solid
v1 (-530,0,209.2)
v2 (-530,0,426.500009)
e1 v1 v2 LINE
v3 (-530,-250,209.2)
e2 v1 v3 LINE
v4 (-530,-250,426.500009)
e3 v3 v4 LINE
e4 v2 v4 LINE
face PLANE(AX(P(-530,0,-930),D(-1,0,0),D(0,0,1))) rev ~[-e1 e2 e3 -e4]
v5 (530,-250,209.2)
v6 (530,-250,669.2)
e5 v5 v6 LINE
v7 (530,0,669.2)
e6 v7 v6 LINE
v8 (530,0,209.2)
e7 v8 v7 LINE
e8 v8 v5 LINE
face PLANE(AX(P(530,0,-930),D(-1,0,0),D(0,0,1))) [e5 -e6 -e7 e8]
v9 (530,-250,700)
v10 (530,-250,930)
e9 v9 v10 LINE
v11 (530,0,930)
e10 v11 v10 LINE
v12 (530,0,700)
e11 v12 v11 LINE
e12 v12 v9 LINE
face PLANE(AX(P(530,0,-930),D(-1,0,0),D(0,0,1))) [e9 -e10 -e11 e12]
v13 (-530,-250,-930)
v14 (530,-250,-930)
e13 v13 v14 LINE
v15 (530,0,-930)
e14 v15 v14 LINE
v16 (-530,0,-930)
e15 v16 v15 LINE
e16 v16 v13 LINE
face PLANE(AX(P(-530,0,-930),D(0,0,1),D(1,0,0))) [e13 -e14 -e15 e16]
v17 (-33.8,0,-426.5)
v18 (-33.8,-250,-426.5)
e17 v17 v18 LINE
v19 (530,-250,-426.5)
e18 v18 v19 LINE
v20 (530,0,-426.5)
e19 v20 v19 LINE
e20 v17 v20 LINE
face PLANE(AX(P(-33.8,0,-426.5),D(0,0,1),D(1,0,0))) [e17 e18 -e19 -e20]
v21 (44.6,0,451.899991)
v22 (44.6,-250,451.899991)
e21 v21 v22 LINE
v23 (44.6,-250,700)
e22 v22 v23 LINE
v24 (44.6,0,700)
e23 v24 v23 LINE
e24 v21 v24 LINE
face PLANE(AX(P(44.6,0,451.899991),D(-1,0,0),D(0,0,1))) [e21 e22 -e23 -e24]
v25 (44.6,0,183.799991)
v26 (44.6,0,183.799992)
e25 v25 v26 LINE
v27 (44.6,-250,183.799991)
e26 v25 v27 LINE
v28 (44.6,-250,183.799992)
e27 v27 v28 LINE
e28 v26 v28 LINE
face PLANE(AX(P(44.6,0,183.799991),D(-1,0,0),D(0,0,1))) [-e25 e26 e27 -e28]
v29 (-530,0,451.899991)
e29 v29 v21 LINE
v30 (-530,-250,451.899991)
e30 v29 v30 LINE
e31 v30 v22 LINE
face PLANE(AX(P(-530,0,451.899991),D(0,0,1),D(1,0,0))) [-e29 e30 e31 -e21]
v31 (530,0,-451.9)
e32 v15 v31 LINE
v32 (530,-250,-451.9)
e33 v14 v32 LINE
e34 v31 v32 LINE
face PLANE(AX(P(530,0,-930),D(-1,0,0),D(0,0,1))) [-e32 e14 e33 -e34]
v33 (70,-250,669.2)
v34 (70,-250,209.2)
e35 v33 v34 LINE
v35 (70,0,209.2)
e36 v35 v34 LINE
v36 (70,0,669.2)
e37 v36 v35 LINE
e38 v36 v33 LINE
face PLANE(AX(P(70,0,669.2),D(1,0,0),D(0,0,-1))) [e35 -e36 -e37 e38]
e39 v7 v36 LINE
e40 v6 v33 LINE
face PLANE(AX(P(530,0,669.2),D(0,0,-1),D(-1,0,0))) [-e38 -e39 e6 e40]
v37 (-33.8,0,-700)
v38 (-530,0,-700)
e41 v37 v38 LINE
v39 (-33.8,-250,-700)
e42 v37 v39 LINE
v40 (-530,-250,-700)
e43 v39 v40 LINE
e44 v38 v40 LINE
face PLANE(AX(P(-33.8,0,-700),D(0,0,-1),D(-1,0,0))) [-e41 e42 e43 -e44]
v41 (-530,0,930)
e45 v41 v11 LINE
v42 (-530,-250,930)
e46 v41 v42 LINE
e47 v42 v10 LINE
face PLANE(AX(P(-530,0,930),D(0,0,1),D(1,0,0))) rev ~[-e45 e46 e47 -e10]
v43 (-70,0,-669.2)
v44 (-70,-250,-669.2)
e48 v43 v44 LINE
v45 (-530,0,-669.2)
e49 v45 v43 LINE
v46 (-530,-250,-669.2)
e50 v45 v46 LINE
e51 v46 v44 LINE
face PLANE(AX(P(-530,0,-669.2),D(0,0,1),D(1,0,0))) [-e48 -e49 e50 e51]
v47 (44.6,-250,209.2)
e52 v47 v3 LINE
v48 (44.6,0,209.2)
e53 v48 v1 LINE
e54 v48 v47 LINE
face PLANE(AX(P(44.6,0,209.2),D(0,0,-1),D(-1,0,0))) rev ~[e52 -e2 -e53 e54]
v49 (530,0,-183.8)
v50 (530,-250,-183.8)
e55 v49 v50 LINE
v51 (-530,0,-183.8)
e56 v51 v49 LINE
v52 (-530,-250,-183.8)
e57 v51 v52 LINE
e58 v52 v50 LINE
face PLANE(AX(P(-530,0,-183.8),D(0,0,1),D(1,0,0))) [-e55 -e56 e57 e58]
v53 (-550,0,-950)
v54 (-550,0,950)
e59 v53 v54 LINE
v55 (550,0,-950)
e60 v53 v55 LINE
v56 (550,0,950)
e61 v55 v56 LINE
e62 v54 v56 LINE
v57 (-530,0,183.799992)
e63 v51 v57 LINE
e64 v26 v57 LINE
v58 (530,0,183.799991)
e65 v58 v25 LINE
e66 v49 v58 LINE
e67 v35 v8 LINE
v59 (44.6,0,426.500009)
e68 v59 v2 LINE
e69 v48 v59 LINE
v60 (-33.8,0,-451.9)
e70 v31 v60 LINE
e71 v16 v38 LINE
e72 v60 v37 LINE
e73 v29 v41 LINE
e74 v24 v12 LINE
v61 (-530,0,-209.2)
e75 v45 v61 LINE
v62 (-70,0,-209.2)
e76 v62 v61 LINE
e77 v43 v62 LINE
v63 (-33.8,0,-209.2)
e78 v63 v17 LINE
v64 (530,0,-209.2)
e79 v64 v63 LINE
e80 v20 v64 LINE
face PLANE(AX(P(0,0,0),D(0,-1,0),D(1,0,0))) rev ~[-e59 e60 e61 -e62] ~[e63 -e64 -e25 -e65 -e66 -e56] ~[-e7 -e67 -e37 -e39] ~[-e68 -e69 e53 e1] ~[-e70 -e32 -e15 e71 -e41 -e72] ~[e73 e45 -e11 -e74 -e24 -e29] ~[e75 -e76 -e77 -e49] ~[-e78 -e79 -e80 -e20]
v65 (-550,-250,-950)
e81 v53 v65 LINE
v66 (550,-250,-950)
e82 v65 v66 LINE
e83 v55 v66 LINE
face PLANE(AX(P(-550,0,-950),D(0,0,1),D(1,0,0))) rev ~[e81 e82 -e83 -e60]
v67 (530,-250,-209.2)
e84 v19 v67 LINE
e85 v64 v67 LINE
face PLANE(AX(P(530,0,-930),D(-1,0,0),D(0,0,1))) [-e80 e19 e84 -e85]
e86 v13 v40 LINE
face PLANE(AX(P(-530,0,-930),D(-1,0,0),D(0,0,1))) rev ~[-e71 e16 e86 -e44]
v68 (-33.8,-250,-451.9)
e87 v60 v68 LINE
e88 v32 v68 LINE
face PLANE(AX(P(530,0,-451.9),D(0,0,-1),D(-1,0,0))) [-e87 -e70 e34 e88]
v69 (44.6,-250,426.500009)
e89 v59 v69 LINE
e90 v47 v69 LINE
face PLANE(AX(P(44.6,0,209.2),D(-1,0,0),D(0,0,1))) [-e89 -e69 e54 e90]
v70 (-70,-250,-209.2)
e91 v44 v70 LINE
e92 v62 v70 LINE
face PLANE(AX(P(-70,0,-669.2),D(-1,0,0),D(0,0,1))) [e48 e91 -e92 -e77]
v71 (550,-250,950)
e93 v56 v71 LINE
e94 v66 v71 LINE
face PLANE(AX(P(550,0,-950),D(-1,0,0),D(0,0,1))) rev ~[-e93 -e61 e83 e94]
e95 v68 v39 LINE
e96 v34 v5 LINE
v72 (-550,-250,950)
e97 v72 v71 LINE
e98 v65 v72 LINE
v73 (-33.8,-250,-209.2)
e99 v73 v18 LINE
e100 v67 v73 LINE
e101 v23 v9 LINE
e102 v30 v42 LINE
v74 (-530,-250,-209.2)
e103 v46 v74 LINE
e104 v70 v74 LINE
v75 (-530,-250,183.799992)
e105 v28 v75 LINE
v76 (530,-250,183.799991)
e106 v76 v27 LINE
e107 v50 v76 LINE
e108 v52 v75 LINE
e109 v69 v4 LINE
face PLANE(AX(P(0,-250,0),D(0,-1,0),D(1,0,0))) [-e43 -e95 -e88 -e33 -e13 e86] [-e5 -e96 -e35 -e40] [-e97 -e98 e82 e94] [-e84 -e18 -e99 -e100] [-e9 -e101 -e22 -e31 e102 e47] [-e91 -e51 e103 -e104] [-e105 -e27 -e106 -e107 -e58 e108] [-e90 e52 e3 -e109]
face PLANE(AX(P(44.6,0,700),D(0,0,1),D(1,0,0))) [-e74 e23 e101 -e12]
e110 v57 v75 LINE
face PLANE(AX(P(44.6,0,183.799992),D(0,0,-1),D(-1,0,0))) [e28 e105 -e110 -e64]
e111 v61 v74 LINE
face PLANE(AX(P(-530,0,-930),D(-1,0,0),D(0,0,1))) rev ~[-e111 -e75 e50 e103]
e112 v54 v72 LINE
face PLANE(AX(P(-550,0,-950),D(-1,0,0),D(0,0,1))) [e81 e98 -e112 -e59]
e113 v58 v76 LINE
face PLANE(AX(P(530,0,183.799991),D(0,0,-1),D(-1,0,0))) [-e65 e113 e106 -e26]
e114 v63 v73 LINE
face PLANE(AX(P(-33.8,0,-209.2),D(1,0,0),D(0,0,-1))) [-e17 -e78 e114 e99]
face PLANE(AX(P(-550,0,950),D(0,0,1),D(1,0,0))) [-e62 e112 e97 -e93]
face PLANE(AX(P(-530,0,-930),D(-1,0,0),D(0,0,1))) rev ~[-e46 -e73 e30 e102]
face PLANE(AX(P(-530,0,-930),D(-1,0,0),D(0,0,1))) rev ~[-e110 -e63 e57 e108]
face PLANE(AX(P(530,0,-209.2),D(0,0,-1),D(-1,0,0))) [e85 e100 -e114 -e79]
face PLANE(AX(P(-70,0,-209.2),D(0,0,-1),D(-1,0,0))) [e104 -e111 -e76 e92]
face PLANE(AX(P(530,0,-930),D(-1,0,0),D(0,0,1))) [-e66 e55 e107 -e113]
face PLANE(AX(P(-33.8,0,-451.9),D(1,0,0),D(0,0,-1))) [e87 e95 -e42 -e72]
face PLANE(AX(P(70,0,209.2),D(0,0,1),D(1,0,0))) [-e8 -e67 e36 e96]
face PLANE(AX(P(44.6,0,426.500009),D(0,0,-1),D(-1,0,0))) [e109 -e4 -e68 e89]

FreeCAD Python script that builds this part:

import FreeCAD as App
import Part
import Sketcher

V = App.Vector

doc = App.newDocument("Part")
body = doc.addObject("PartDesign::Body", "Body")

# Sketch on XZ plane
sketch1 = body.newObject("Sketcher::SketchObject", "Sketch")
sketch1.AttachmentSupport = (doc.getObject("XZ_Plane"), [""])
sketch1.MapMode = "FlatFace"
sketch1.addGeometry(Part.LineSegment(V(-550, 950, 0), V(-550, -950, 0)), False)
sketch1.addGeometry(Part.LineSegment(V(-550, -950, 0), V(550, -950, 0)), False)
sketch1.addGeometry(Part.LineSegment(V(550, -950, 0), V(550, 950, 0)), False)
sketch1.addGeometry(Part.LineSegment(V(550, 950, 0), V(-550, 950, 0)), False)
sketch1.addGeometry(Part.LineSegment(V(530, -930, 0), V(-530, -930, 0)), False)
sketch1.addGeometry(Part.LineSegment(V(-530, -930, 0), V(-530, 930, 0)), False)
sketch1.addGeometry(Part.LineSegment(V(-530, 930, 0), V(530, 930, 0)), False)
sketch1.addGeometry(Part.LineSegment(V(530, 930, 0), V(530, -930, 0)), False)
sketch1.addConstraint(Sketcher.Constraint("Coincident", 0, 2, 1, 1))
sketch1.addConstraint(Sketcher.Constraint("Coincident", 1, 2, 2, 1))
sketch1.addConstraint(Sketcher.Constraint("Coincident", 2, 2, 3, 1))
sketch1.addConstraint(Sketcher.Constraint("Coincident", 3, 2, 0, 1))
sketch1.addConstraint(Sketcher.Constraint("Coincident", 4, 2, 5, 1))
sketch1.addConstraint(Sketcher.Constraint("Coincident", 5, 2, 6, 1))
sketch1.addConstraint(Sketcher.Constraint("Coincident", 6, 2, 7, 1))
sketch1.addConstraint(Sketcher.Constraint("Coincident", 7, 2, 4, 1))
sketch1.addConstraint(Sketcher.Constraint("Vertical", 0))
sketch1.addConstraint(Sketcher.Constraint("Horizontal", 1))
sketch1.addConstraint(Sketcher.Constraint("Vertical", 2))
sketch1.addConstraint(Sketcher.Constraint("Horizontal", 3))
sketch1.addConstraint(Sketcher.Constraint("Horizontal", 4))
sketch1.addConstraint(Sketcher.Constraint("Vertical", 5))
sketch1.addConstraint(Sketcher.Constraint("Horizontal", 6))
sketch1.addConstraint(Sketcher.Constraint("Vertical", 7))
sketch1.addConstraint(Sketcher.Constraint("Symmetric", 0, 2, 2, 2, -1, 1))
sketch1.addConstraint(Sketcher.Constraint("Symmetric", 4, 2, 6, 2, -1, 1))
sketch1.addConstraint(Sketcher.Constraint("DistanceX", 1, 1, 1, 2, 1100.0))
sketch1.addConstraint(Sketcher.Constraint("DistanceX", 4, 2, 4, 1, 1060.0))
sketch1.addConstraint(Sketcher.Constraint("DistanceY", 0, 2, 0, 1, 1900.0))
sketch1.addConstraint(Sketcher.Constraint("DistanceY", 5, 1, 5, 2, 1860.0))
pad1 = body.newObject("PartDesign::Pad", "Pad")
pad1.Profile = sketch1
pad1.Length = 250

# Sketch on XZ plane
sketch2 = body.newObject("Sketcher::SketchObject", "Sketch001")
sketch2.AttachmentSupport = (doc.getObject("XZ_Plane"), [""])
sketch2.MapMode = "FlatFace"
sketch2.addGeometry(Part.LineSegment(V(-530, 426.500009, 0), V(-530, 451.899991, 0)), False)
sketch2.addGeometry(Part.LineSegment(V(-530, 451.899991, 0), V(44.6, 451.899991, 0)), False)
sketch2.addGeometry(Part.LineSegment(V(44.6, 451.899991, 0), V(44.6, 700, 0)), False)
sketch2.addGeometry(Part.LineSegment(V(44.6, 700, 0), V(530, 700, 0)), False)
sketch2.addGeometry(Part.LineSegment(V(530, 700, 0), V(530, 669.2, 0)), False)
sketch2.addGeometry(Part.LineSegment(V(530, 669.2, 0), V(70, 669.2, 0)), False)
sketch2.addGeometry(Part.LineSegment(V(70, 669.2, 0), V(70, 209.2, 0)), False)
sketch2.addGeometry(Part.LineSegment(V(70, 209.2, 0), V(530, 209.2, 0)), False)
sketch2.addGeometry(Part.LineSegment(V(530, 209.2, 0), V(530, 183.799991, 0)), False)
sketch2.addGeometry(Part.LineSegment(V(530, 183.799991, 0), V(44.6, 183.799991, 0)), False)
sketch2.addGeometry(Part.LineSegment(V(44.6, 183.799992, 0), V(44.6, 183.799991, 0)), False)
sketch2.addGeometry(Part.LineSegment(V(44.6, 183.799992, 0), V(-530, 183.799992, 0)), False)
sketch2.addGeometry(Part.LineSegment(V(-530, 183.799992, 0), V(-530, 209.2, 0)), False)
sketch2.addGeometry(Part.LineSegment(V(-530, 209.2, 0), V(44.6, 209.2, 0)), False)
sketch2.addGeometry(Part.LineSegment(V(44.6, 209.2, 0), V(44.6, 426.500009, 0)), False)
sketch2.addGeometry(Part.LineSegment(V(44.6, 426.500009, 0), V(-530, 426.500009, 0)), False)
sketch2.addGeometry(Part.LineSegment(V(530, -426.5, 0), V(530, -451.9, 0)), False)
sketch2.addGeometry(Part.LineSegment(V(530, -451.9, 0), V(-33.8, -451.9, 0)), False)
sketch2.addGeometry(Part.LineSegment(V(-33.8, -451.9, 0), V(-33.8, -700, 0)), False)
sketch2.addGeometry(Part.LineSegment(V(-33.8, -700, 0), V(-530, -700, 0)), False)
sketch2.addGeometry(Part.LineSegment(V(-530, -700, 0), V(-530, -669.2, 0)), False)
sketch2.addGeometry(Part.LineSegment(V(-530, -669.2, 0), V(-70, -669.2, 0)), False)
sketch2.addGeometry(Part.LineSegment(V(-70, -669.2, 0), V(-70, -209.2, 0)), False)
sketch2.addGeometry(Part.LineSegment(V(-70, -209.2, 0), V(-530, -209.2, 0)), False)
sketch2.addGeometry(Part.LineSegment(V(-530, -209.2, 0), V(-530, -183.8, 0)), False)
sketch2.addGeometry(Part.LineSegment(V(-530, -183.8, 0), V(530, -183.8, 0)), False)
sketch2.addGeometry(Part.LineSegment(V(530, -183.8, 0), V(530, -209.2, 0)), False)
sketch2.addGeometry(Part.LineSegment(V(530, -209.2, 0), V(-33.8, -209.2, 0)), False)
sketch2.addGeometry(Part.LineSegment(V(-33.8, -209.2, 0), V(-33.8, -426.5, 0)), False)
sketch2.addGeometry(Part.LineSegment(V(-33.8, -426.5, 0), V(530, -426.5, 0)), False)
sketch2.addConstraint(Sketcher.Constraint("Coincident", 0, 2, 1, 1))
sketch2.addConstraint(Sketcher.Constraint("Coincident", 1, 2, 2, 1))
sketch2.addConstraint(Sketcher.Constraint("Coincident", 2, 2, 3, 1))
sketch2.addConstraint(Sketcher.Constraint("Coincident", 3, 2, 4, 1))
sketch2.addConstraint(Sketcher.Constraint("Coincident", 4, 2, 5, 1))
sketch2.addConstraint(Sketcher.Constraint("Coincident", 5, 2, 6, 1))
sketch2.addConstraint(Sketcher.Constraint("Coincident", 6, 2, 7, 1))
sketch2.addConstraint(Sketcher.Constraint("Coincident", 7, 2, 8, 1))
sketch2.addConstraint(Sketcher.Constraint("Coincident", 8, 2, 9, 1))
sketch2.addConstraint(Sketcher.Constraint("Coincident", 9, 2, 10, 1))
sketch2.addConstraint(Sketcher.Constraint("Coincident", 10, 2, 11, 1))
sketch2.addConstraint(Sketcher.Constraint("Coincident", 11, 2, 12, 1))
sketch2.addConstraint(Sketcher.Constraint("Coincident", 12, 2, 13, 1))
sketch2.addConstraint(Sketcher.Constraint("Coincident", 13, 2, 14, 1))
sketch2.addConstraint(Sketcher.Constraint("Coincident", 14, 2, 15, 1))
sketch2.addConstraint(Sketcher.Constraint("Coincident", 15, 2, 0, 1))
sketch2.addConstraint(Sketcher.Constraint("Coincident", 16, 2, 17, 1))
sketch2.addConstraint(Sketcher.Constraint("Coincident", 17, 2, 18, 1))
sketch2.addConstraint(Sketcher.Constraint("Coincident", 18, 2, 19, 1))
sketch2.addConstraint(Sketcher.Constraint("Coincident", 19, 2, 20, 1))
sketch2.addConstraint(Sketcher.Constraint("Coincident", 20, 2, 21, 1))
sketch2.addConstraint(Sketcher.Constraint("Coincident", 21, 2, 22, 1))
sketch2.addConstraint(Sketcher.Constraint("Coincident", 22, 2, 23, 1))
sketch2.addConstraint(Sketcher.Constraint("Coincident", 23, 2, 24, 1))
sketch2.addConstraint(Sketcher.Constraint("Coincident", 24, 2, 25, 1))
sketch2.addConstraint(Sketcher.Constraint("Coincident", 25, 2, 26, 1))
sketch2.addConstraint(Sketcher.Constraint("Coincident", 26, 2, 27, 1))
sketch2.addConstraint(Sketcher.Constraint("Coincident", 27, 2, 28, 1))
sketch2.addConstraint(Sketcher.Constraint("Coincident", 28, 2, 29, 1))
sketch2.addConstraint(Sketcher.Constraint("Coincident", 29, 2, 16, 1))
sketch2.addConstraint(Sketcher.Constraint("Vertical", 0))
sketch2.addConstraint(Sketcher.Constraint("Horizontal", 1))
sketch2.addConstraint(Sketcher.Constraint("Vertical", 2))
sketch2.addConstraint(Sketcher.Constraint("Horizontal", 3))
sketch2.addConstraint(Sketcher.Constraint("Vertical", 4))
sketch2.addConstraint(Sketcher.Constraint("Horizontal", 5))
sketch2.addConstraint(Sketcher.Constraint("Vertical", 6))
sketch2.addConstraint(Sketcher.Constraint("Horizontal", 7))
sketch2.addConstraint(Sketcher.Constraint("Vertical", 8))
sketch2.addConstraint(Sketcher.Constraint("Horizontal", 9))
sketch2.addConstraint(Sketcher.Constraint("Horizontal", 10))
sketch2.addConstraint(Sketcher.Constraint("Horizontal", 11))
sketch2.addConstraint(Sketcher.Constraint("Vertical", 12))
sketch2.addConstraint(Sketcher.Constraint("Horizontal", 13))
sketch2.addConstraint(Sketcher.Constraint("Vertical", 14))
sketch2.addConstraint(Sketcher.Constraint("Horizontal", 15))
sketch2.addConstraint(Sketcher.Constraint("Vertical", 16))
sketch2.addConstraint(Sketcher.Constraint("Horizontal", 17))
sketch2.addConstraint(Sketcher.Constraint("Vertical", 18))
sketch2.addConstraint(Sketcher.Constraint("Horizontal", 19))
sketch2.addConstraint(Sketcher.Constraint("Vertical", 20))
sketch2.addConstraint(Sketcher.Constraint("Horizontal", 21))
sketch2.addConstraint(Sketcher.Constraint("Vertical", 22))
sketch2.addConstraint(Sketcher.Constraint("Horizontal", 23))
sketch2.addConstraint(Sketcher.Constraint("Vertical", 24))
sketch2.addConstraint(Sketcher.Constraint("Horizontal", 25))
sketch2.addConstraint(Sketcher.Constraint("Vertical", 26))
sketch2.addConstraint(Sketcher.Constraint("Horizontal", 27))
sketch2.addConstraint(Sketcher.Constraint("Vertical", 28))
sketch2.addConstraint(Sketcher.Constraint("Horizontal", 29))
sketch2.addConstraint(Sketcher.Constraint("DistanceX", 5, 2, 5, 1, 460.0))
sketch2.addConstraint(Sketcher.Constraint("DistanceX", 7, 1, 7, 2, 460.0))
sketch2.addConstraint(Sketcher.Constraint("DistanceX", 21, 1, 21, 2, 460.0))
sketch2.addConstraint(Sketcher.Constraint("DistanceX", 23, 2, 23, 1, 460.0))
sketch2.addConstraint(Sketcher.Constraint("DistanceX", 25, 1, 25, 2, 1060.0))
sketch2.addConstraint(Sketcher.Constraint("DistanceY", 6, 2, 6, 1, 460.0))
sketch2.addConstraint(Sketcher.Constraint("DistanceY", 22, 1, 22, 2, 460.0))
sketch2.addConstraint(Sketcher.Constraint("DistanceX", 1, 1, 1, 2, 574.6))
sketch2.addConstraint(Sketcher.Constraint("DistanceX", 3, 1, 3, 2, 485.4))
sketch2.addConstraint(Sketcher.Constraint("DistanceX", 9, 2, 9, 1, 485.4))
sketch2.addConstraint(Sketcher.Constraint("DistanceX", 11, 2, 11, 1, 574.6))
sketch2.addConstraint(Sketcher.Constraint("DistanceX", 13, 1, 13, 2, 574.6))
sketch2.addConstraint(Sketcher.Constraint("DistanceX", 15, 2, 15, 1, 574.6))
sketch2.addConstraint(Sketcher.Constraint("DistanceX", 17, 2, 17, 1, 563.8))
sketch2.addConstraint(Sketcher.Constraint("DistanceX", 19, 2, 19, 1, 496.2))
sketch2.addConstraint(Sketcher.Constraint("DistanceX", 27, 2, 27, 1, 563.8))
sketch2.addConstraint(Sketcher.Constraint("DistanceY", 4, 2, 4, 1, 30.8))
sketch2.addConstraint(Sketcher.Constraint("DistanceY", 16, 2, 16, 1, 25.4))
sketch2.addConstraint(Sketcher.Constraint("DistanceY", 18, 2, 18, 1, 248.1))
sketch2.addConstraint(Sketcher.Constraint("DistanceY", 20, 1, 20, 2, 30.8))
sketch2.addConstraint(Sketcher.Constraint("DistanceY", 24, 1, 24, 2, 25.4))
sketch2.addConstraint(Sketcher.Constraint("DistanceY", 26, 2, 26, 1, 25.4))
sketch2.addConstraint(Sketcher.Constraint("DistanceX", 0, 2, -1, 1, 530.0))
sketch2.addConstraint(Sketcher.Constraint("DistanceY", -1, 1, 2, 2, 700.0))
sketch2.addConstraint(Sketcher.Constraint("DistanceX", -1, 1, 16, 2, 530.0))
sketch2.addConstraint(Sketcher.Constraint("DistanceY", 18, 2, -1, 1, 700.0))
sketch2.addConstraint(Sketcher.Constraint("DistanceY", 13, 2, 5, 2, 460.0))
sketch2.addConstraint(Sketcher.Constraint("DistanceY", 8, 2, 1, 2, 268.1))
sketch2.addConstraint(Sketcher.Constraint("DistanceY", 2, 1, 2, 2, 248.100009))
sketch2.addConstraint(Sketcher.Constraint("DistanceY", 14, 1, 14, 2, 217.300008))
pad2 = body.newObject("PartDesign::Pad", "Pad001")
pad2.Profile = sketch2
pad2.Length = 250

doc.recompute()
